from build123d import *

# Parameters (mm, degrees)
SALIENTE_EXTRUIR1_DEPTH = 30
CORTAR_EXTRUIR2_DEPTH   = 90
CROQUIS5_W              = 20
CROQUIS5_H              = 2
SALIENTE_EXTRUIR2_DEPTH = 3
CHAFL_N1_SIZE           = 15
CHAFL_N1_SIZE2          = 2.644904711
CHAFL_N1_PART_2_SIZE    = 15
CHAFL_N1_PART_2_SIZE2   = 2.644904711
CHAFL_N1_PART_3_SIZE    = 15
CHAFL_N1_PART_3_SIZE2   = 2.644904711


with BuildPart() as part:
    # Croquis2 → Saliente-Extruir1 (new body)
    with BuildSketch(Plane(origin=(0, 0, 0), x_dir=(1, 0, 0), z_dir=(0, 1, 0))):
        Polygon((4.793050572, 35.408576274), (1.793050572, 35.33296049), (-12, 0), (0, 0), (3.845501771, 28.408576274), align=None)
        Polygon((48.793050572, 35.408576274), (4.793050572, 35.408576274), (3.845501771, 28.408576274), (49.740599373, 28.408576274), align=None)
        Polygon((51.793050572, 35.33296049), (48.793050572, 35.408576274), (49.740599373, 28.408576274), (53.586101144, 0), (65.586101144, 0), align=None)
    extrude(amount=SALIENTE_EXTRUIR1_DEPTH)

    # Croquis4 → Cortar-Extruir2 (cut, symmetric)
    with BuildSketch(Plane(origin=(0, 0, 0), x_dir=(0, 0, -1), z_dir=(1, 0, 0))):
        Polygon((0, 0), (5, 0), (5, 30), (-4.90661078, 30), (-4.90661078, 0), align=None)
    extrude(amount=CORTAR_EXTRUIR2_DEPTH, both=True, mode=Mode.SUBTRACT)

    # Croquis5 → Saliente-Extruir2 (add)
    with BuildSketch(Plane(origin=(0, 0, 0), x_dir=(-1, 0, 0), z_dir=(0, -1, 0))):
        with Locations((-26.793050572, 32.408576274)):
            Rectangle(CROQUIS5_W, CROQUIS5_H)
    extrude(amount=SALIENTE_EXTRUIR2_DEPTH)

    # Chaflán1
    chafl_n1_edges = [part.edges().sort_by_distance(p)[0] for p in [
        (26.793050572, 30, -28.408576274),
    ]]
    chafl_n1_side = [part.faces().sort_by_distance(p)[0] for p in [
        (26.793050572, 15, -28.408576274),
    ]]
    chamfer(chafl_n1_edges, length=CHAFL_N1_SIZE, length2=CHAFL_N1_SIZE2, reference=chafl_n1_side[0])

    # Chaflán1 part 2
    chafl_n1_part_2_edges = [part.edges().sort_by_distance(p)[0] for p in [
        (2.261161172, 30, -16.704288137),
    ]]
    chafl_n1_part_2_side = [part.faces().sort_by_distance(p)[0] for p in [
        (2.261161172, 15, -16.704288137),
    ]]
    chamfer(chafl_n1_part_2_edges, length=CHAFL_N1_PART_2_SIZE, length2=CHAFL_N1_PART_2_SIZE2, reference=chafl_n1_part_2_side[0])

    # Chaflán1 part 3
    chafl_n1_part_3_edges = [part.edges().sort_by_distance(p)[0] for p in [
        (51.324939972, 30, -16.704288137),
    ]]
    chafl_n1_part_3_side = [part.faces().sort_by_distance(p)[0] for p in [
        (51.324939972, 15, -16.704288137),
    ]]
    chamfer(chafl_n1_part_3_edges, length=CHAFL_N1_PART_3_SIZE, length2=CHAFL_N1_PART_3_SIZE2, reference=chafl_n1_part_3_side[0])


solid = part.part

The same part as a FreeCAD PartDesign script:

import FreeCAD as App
import Part
import Sketcher
from FreeCAD import Vector
Q = App.Units.Quantity


def edges_at(feature, points):
    """Names of the edges that pass closest to the given points."""
    edges = feature.Shape.Edges
    near = lambda p: min(range(len(edges)), key=lambda i: edges[i].distToShape(Part.Vertex(*p))[0])
    return sorted({f"Edge{near(p) + 1}" for p in points})

doc = App.newDocument("Part")
body = doc.addObject("PartDesign::Body", "Body")

sketch1 = doc.addObject("Sketcher::SketchObject", "Sketch")
body.addObject(sketch1)
sketch1.AttachmentSupport = (doc.XZ_Plane, [""])
sketch1.MapMode = "FlatFace"
sketch1.addGeometry(Part.LineSegment(Vector(4.793051, -35.408576, 0), Vector(1.793051, -35.33296, 0)), False)
sketch1.addGeometry(Part.LineSegment(Vector(1.793051, -35.33296, 0), Vector(-12, 0, 0)), False)
sketch1.addGeometry(Part.LineSegment(Vector(-12, 0, 0), Vector(0, 0, 0)), False)
sketch1.addGeometry(Part.LineSegment(Vector(0, 0, 0), Vector(3.845502, -28.408576, 0)), False)
sketch1.addGeometry(Part.LineSegment(Vector(3.845502, -28.408576, 0), Vector(49.740599, -28.408576, 0)), False)
sketch1.addGeometry(Part.LineSegment(Vector(49.740599, -28.408576, 0), Vector(53.586101, 0, 0)), False)
sketch1.addGeometry(Part.LineSegment(Vector(53.586101, 0, 0), Vector(65.586101, 0, 0)), False)
sketch1.addGeometry(Part.LineSegment(Vector(65.586101, 0, 0), Vector(51.793051, -35.33296, 0)), False)
sketch1.addGeometry(Part.LineSegment(Vector(51.793051, -35.33296, 0), Vector(48.793051, -35.408576, 0)), False)
sketch1.addGeometry(Part.LineSegment(Vector(48.793051, -35.408576, 0), Vector(4.793051, -35.408576, 0)), False)
sketch1.addConstraint(Sketcher.Constraint("Coincident", 0, 2, 1, 1))
sketch1.addConstraint(Sketcher.Constraint("Coincident", 1, 2, 2, 1))
sketch1.addConstraint(Sketcher.Constraint("Coincident", 2, 2, 3, 1))
sketch1.addConstraint(Sketcher.Constraint("Coincident", 3, 2, 4, 1))
sketch1.addConstraint(Sketcher.Constraint("Coincident", 4, 2, 5, 1))
sketch1.addConstraint(Sketcher.Constraint("Coincident", 5, 2, 6, 1))
sketch1.addConstraint(Sketcher.Constraint("Coincident", 6, 2, 7, 1))
sketch1.addConstraint(Sketcher.Constraint("Coincident", 7, 2, 8, 1))
sketch1.addConstraint(Sketcher.Constraint("Coincident", 8, 2, 9, 1))
sketch1.addConstraint(Sketcher.Constraint("Coincident", 9, 2, 0, 1))
sketch1.addConstraint(Sketcher.Constraint("Horizontal", 2))
sketch1.addConstraint(Sketcher.Constraint("Horizontal", 4))
sketch1.addConstraint(Sketcher.Constraint("Horizontal", 6))
sketch1.addConstraint(Sketcher.Constraint("Horizontal", 9))
sketch1.addConstraint(Sketcher.Constraint("Coincident", 2, 2, -1, 1))
sketch1.addConstraint(Sketcher.Constraint("PointOnObject", 5, 2, -1))
sketch1.addConstraint(Sketcher.Constraint("Horizontal", 0, 2, 7, 2))
sketch1.addConstraint(Sketcher.Constraint("Equal", 2, 6))
sketch1.addConstraint(Sketcher.Constraint("Equal", 3, 5))
sketch1.addConstraint(Sketcher.Constraint("Equal", 1, 7))
sketch1.addConstraint(Sketcher.Constraint("Equal", 0, 8))
sketch1.addConstraint(Sketcher.Constraint("DistanceX", 2, 1, 2, 2, Q("12 mm")))
sketch1.addConstraint(Sketcher.Constraint("DistanceX", 9, 2, 9, 1, Q("44 mm")))
sketch1.addConstraint(Sketcher.Constraint("DistanceX", 0, 2, 7, 2, Q("50 mm")))
sketch1.addConstraint(Sketcher.Constraint("DistanceY", 8, 2, 4, 2, Q("7 mm")))
sketch1.addConstraint(Sketcher.Constraint("DistanceX", -1, 1, 3, 2, Q("3.845502 mm")))
sketch1.addConstraint(Sketcher.Constraint("DistanceX", -1, 1, 4, 2, Q("49.740599 mm")))
sketch1.addConstraint(Sketcher.Constraint("DistanceY", 0, 2, -1, 1, Q("35.33296 mm")))
sketch1.addConstraint(Sketcher.Constraint("Distance", 0, Q("3.000953 mm")))
pad1 = doc.addObject("PartDesign::Pad", "Pad")
body.addObject(pad1)
pad1.Profile = sketch1
pad1.Length = 30
pad1.Reversed = True

sketch2 = doc.addObject("Sketcher::SketchObject", "Sketch001")
body.addObject(sketch2)
sketch2.AttachmentSupport = (doc.YZ_Plane, [""])
sketch2.MapMode = "FlatFace"
sketch2.addGeometry(Part.LineSegment(Vector(0, -5, 0), Vector(30, -5, 0)), False)
sketch2.addGeometry(Part.LineSegment(Vector(30, -5, 0), Vector(30, 4.906611, 0)), False)
sketch2.addGeometry(Part.LineSegment(Vector(30, 4.906611, 0), Vector(0, 4.906611, 0)), False)
sketch2.addGeometry(Part.LineSegment(Vector(0, 4.906611, 0), Vector(0, -5, 0)), False)
sketch2.addConstraint(Sketcher.Constraint("Coincident", 0, 2, 1, 1))
sketch2.addConstraint(Sketcher.Constraint("Coincident", 1, 2, 2, 1))
sketch2.addConstraint(Sketcher.Constraint("Coincident", 2, 2, 3, 1))
sketch2.addConstraint(Sketcher.Constraint("Coincident", 3, 2, 0, 1))
sketch2.addConstraint(Sketcher.Constraint("Horizontal", 0))
sketch2.addConstraint(Sketcher.Constraint("Vertical", 1))
sketch2.addConstraint(Sketcher.Constraint("Horizontal", 2))
sketch2.addConstraint(Sketcher.Constraint("Vertical", 3))
sketch2.addConstraint(Sketcher.Constraint("PointOnObject", 2, 2, -2))
sketch2.addConstraint(Sketcher.Constraint("DistanceX", 0, 1, 0, 2, Q("30 mm")))
sketch2.addConstraint(Sketcher.Constraint("DistanceY", 0, 2, -1, 1, Q("5 mm")))
sketch2.addConstraint(Sketcher.Constraint("DistanceY", 1, 1, 1, 2, Q("9.906611 mm")))
pocket1 = doc.addObject("PartDesign::Pocket", "Pocket")
body.addObject(pocket1)
pocket1.Profile = sketch2
pocket1.Length = 180
pocket1.Midplane = True

sketch3 = doc.addObject("Sketcher::SketchObject", "Sketch002")
body.addObject(sketch3)
sketch3.AttachmentSupport = (doc.XZ_Plane, [""])
sketch3.MapMode = "FlatFace"
sketch3.addGeometry(Part.LineSegment(Vector(36.793051, -33.408576, 0), Vector(36.793051, -31.408576, 0)), False)
sketch3.addGeometry(Part.LineSegment(Vector(36.793051, -31.408576, 0), Vector(16.793051, -31.408576, 0)), False)
sketch3.addGeometry(Part.LineSegment(Vector(16.793051, -31.408576, 0), Vector(16.793051, -33.408576, 0)), False)
sketch3.addGeometry(Part.LineSegment(Vector(16.793051, -33.408576, 0), Vector(36.793051, -33.408576, 0)), False)
sketch3.addConstraint(Sketcher.Constraint("Coincident", 0, 2, 1, 1))
sketch3.addConstraint(Sketcher.Constraint("Coincident", 1, 2, 2, 1))
sketch3.addConstraint(Sketcher.Constraint("Coincident", 2, 2, 3, 1))
sketch3.addConstraint(Sketcher.Constraint("Coincident", 3, 2, 0, 1))
sketch3.addConstraint(Sketcher.Constraint("Vertical", 0))
sketch3.addConstraint(Sketcher.Constraint("Horizontal", 1))
sketch3.addConstraint(Sketcher.Constraint("Vertical", 2))
sketch3.addConstraint(Sketcher.Constraint("Horizontal", 3))
sketch3.addConstraint(Sketcher.Constraint("DistanceX", 1, 2, 1, 1, Q("20 mm")))
sketch3.addConstraint(Sketcher.Constraint("DistanceY", 0, 1, 0, 2, Q("2 mm")))
sketch3.addConstraint(Sketcher.Constraint("DistanceX", -1, 1, 0, 2, Q("36.793051 mm")))
sketch3.addConstraint(Sketcher.Constraint("DistanceY", 0, 2, -1, 1, Q("31.408576 mm")))
pad2 = doc.addObject("PartDesign::Pad", "Pad001")
body.addObject(pad2)
pad2.Profile = sketch3
pad2.Length = 3
doc.recompute()

chamfer = doc.addObject("PartDesign::Chamfer", "Chamfer")
body.addObject(chamfer)
chamfer.Base = (pad2, edges_at(pad2, [(26.793, 30, -28.409)]))
chamfer.ChamferType = "Two distances"
chamfer.Size = 15
chamfer.Size2 = 2.644905
chamfer.FlipDirection = True
doc.recompute()

chamfer2 = doc.addObject("PartDesign::Chamfer", "Chamfer001")
body.addObject(chamfer2)
chamfer2.Base = (chamfer, edges_at(chamfer, [(2.44, 30, -18.027)]))
chamfer2.ChamferType = "Two distances"
chamfer2.Size = 15
chamfer2.Size2 = 2.644905
chamfer2.FlipDirection = True
doc.recompute()

chamfer3 = doc.addObject("PartDesign::Chamfer", "Chamfer002")
body.addObject(chamfer3)
chamfer3.Base = (chamfer2, edges_at(chamfer2, [(51.146, 30, -18.027)]))
chamfer3.ChamferType = "Two distances"
chamfer3.Size = 15
chamfer3.Size2 = 2.644905
chamfer3.FlipDirection = True

doc.recompute()
